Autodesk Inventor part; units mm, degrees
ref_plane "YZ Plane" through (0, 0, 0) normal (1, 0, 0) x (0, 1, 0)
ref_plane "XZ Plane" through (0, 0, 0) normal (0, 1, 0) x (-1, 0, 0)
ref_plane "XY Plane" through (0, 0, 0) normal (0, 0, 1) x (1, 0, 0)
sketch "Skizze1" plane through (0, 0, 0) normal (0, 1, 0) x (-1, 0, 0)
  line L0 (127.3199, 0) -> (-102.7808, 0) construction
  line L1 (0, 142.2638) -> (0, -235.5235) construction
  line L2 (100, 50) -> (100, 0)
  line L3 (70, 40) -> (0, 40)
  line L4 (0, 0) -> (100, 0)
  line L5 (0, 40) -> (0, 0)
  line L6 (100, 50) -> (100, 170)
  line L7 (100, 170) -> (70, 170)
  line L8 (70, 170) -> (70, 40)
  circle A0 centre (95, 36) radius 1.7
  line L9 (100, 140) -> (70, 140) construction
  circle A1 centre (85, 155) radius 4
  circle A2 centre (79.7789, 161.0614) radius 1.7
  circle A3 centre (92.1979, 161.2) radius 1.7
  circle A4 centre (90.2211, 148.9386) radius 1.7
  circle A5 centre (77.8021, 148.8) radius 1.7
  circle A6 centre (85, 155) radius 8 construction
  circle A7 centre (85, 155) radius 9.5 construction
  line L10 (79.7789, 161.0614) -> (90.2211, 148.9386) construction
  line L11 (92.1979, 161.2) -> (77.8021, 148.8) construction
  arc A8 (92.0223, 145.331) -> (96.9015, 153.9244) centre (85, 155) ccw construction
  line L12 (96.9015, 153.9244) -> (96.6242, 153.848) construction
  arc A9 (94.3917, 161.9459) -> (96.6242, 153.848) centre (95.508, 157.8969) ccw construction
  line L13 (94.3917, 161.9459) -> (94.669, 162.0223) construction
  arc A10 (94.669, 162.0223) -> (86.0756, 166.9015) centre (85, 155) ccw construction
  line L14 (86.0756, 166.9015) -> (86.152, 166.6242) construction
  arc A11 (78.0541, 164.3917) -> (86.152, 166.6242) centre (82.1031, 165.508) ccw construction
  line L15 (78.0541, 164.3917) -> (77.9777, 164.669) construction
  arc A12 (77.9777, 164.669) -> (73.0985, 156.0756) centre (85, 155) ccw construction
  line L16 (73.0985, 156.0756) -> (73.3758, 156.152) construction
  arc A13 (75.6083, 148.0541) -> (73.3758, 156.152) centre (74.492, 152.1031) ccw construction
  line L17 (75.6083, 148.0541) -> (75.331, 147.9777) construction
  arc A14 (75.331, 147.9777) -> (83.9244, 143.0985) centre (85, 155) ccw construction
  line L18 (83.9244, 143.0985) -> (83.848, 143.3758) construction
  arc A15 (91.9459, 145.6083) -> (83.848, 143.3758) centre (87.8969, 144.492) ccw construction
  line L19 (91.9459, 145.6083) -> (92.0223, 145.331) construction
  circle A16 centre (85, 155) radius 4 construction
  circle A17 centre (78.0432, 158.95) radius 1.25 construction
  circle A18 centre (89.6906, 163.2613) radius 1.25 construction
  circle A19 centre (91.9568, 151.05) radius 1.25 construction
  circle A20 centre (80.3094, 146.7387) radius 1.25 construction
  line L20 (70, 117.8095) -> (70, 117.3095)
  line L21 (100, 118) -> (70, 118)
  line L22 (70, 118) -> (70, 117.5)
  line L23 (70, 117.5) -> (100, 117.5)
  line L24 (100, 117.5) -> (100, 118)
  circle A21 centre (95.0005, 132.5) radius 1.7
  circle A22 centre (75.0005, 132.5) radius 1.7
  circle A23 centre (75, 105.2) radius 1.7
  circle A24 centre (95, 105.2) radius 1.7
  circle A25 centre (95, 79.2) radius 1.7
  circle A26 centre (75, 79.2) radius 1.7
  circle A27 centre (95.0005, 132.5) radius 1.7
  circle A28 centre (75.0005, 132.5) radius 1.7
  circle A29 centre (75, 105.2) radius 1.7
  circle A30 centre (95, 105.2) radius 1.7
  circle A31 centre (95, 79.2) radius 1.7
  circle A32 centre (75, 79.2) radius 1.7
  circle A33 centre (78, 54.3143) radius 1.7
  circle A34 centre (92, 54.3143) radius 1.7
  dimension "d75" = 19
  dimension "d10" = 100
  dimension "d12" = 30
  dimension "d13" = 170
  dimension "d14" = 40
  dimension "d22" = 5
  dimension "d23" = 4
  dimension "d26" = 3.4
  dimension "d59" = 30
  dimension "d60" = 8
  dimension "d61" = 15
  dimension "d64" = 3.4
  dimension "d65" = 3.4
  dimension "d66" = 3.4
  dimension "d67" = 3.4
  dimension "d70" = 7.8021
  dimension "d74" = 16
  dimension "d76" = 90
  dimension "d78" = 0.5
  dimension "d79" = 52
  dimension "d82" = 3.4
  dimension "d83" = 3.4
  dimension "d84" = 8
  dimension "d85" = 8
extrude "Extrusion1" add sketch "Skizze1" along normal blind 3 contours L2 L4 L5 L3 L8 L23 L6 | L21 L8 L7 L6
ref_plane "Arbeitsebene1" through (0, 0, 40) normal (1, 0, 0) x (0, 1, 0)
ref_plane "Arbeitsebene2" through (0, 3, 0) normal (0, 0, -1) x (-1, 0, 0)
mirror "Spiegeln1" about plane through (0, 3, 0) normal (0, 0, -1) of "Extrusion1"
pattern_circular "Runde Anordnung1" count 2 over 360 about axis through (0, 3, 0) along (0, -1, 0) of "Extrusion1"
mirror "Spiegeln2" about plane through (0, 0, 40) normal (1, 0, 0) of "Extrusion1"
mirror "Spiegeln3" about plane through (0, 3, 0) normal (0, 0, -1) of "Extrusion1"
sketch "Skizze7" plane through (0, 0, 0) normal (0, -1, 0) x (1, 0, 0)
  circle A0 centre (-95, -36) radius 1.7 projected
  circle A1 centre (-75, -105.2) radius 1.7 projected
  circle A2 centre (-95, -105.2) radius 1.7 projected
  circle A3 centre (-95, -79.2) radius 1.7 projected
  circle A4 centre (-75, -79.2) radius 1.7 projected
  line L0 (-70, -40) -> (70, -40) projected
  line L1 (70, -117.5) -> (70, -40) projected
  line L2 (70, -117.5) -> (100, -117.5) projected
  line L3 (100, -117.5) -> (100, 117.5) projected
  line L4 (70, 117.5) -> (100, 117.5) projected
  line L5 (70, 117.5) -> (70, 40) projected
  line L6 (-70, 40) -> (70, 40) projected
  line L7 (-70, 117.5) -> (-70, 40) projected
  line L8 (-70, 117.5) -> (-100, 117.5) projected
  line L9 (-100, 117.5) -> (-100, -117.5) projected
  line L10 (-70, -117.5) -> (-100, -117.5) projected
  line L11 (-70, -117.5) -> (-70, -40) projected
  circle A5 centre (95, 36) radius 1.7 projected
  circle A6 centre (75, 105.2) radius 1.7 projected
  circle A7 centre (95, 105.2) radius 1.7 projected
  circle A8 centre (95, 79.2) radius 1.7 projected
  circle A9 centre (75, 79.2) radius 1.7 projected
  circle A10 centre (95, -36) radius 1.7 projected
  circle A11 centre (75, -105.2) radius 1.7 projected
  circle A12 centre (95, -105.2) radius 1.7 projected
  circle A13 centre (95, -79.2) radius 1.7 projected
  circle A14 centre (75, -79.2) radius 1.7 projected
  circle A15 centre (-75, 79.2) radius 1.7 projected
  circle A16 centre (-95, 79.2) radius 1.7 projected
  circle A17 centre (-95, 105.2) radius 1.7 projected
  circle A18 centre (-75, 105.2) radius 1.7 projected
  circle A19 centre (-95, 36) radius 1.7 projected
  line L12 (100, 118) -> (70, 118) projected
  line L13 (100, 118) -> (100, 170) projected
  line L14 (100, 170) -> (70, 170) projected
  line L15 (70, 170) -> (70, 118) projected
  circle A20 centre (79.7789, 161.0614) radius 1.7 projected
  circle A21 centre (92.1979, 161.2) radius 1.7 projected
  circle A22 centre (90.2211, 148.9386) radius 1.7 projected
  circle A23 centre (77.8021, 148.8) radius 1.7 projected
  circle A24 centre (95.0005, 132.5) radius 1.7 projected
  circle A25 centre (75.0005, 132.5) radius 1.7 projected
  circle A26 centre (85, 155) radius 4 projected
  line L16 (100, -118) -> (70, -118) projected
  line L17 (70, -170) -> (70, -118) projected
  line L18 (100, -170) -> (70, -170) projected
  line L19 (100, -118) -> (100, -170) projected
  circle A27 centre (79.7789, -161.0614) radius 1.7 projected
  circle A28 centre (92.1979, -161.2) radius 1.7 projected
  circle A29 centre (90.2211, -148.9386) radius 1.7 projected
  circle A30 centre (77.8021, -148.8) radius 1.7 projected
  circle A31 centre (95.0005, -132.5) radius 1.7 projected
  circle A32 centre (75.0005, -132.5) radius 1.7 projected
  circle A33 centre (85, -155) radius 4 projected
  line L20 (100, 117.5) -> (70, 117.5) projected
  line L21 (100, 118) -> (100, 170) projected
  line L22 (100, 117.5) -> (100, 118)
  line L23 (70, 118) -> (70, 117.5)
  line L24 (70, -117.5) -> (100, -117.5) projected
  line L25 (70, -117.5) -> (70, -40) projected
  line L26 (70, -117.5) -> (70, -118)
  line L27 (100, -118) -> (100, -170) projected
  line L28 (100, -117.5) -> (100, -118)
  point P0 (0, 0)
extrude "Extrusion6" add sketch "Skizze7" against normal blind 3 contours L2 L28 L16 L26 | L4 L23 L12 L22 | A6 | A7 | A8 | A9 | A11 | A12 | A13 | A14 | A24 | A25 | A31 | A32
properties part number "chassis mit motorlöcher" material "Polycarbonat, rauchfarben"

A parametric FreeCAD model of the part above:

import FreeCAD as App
import Part
import Sketcher
from FreeCAD import Vector


def add_polygon(sketch, points):
    """Adds a closed chain of lines whose ends are joined by coincident constraints."""
    first, n = sketch.GeometryCount, len(points)
    for a, b in zip(points, points[1:] + points[:1]):
        sketch.addGeometry(Part.LineSegment(App.Vector(*a, 0), App.Vector(*b, 0)), False)
    for i in range(n):
        sketch.addConstraint(Sketcher.Constraint("Coincident", first + i, 2, first + (i + 1) % n, 1))

doc = App.newDocument("Part")
body = doc.addObject("PartDesign::Body", "Body")
body.AllowCompound = True

sketch1 = body.newObject("Sketcher::SketchObject", "Sketch")
sketch1.AttachmentSupport = (doc.getObject("XZ_Plane"), [""])
sketch1.MapMode = "FlatFace"
add_polygon(sketch1, [(-100, 0), (-100, 117.5), (-70, 117.5), (-70, 40), (0, 40), (0, 0)])
sketch1.addGeometry(Part.Circle(Vector(-95, 36, 0), Vector(0, 0, 1), 1.7), False)
sketch1.addGeometry(Part.Circle(Vector(-78, 54.3, 0), Vector(0, 0, 1), 1.7), False)
sketch1.addGeometry(Part.Circle(Vector(-92, 54.3, 0), Vector(0, 0, 1), 1.7), False)
sketch1.addGeometry(Part.Circle(Vector(-75, 79.2, 0), Vector(0, 0, 1), 1.7), False)
sketch1.addGeometry(Part.Circle(Vector(-95, 79.2, 0), Vector(0, 0, 1), 1.7), False)
sketch1.addGeometry(Part.Circle(Vector(-75, 105.2, 0), Vector(0, 0, 1), 1.7), False)
sketch1.addGeometry(Part.Circle(Vector(-95, 105.2, 0), Vector(0, 0, 1), 1.7), False)
add_polygon(sketch1, [(-70, 118), (-100, 118), (-100, 170), (-70, 170)])
sketch1.addGeometry(Part.Circle(Vector(-75, 132.5, 0), Vector(0, 0, 1), 1.7), False)
sketch1.addGeometry(Part.Circle(Vector(-95, 132.5, 0), Vector(0, 0, 1), 1.7), False)
sketch1.addGeometry(Part.Circle(Vector(-77.8, 148.8, 0), Vector(0, 0, 1), 1.7), False)
sketch1.addGeometry(Part.Circle(Vector(-85, 155, 0), Vector(0, 0, 1), 4), False)
sketch1.addGeometry(Part.Circle(Vector(-79.8, 161.1, 0), Vector(0, 0, 1), 1.7), False)
sketch1.addGeometry(Part.Circle(Vector(-90.2, 148.9, 0), Vector(0, 0, 1), 1.7), False)
sketch1.addGeometry(Part.Circle(Vector(-92.2, 161.2, 0), Vector(0, 0, 1), 1.7), False)
sketch1.addConstraint(Sketcher.Constraint("Vertical", 0))
sketch1.addConstraint(Sketcher.Constraint("Horizontal", 1))
sketch1.addConstraint(Sketcher.Constraint("Vertical", 2))
sketch1.addConstraint(Sketcher.Constraint("Horizontal", 3))
sketch1.addConstraint(Sketcher.Constraint("Vertical", 4))
sketch1.addConstraint(Sketcher.Constraint("Horizontal", 5))
sketch1.addConstraint(Sketcher.Constraint("Horizontal", 13))
sketch1.addConstraint(Sketcher.Constraint("Vertical", 14))
sketch1.addConstraint(Sketcher.Constraint("Horizontal", 15))
sketch1.addConstraint(Sketcher.Constraint("Vertical", 16))
sketch1.addConstraint(Sketcher.Constraint("Coincident", 4, 2, -1, 1))
sketch1.addConstraint(Sketcher.Constraint("Equal", 6, 7))
sketch1.addConstraint(Sketcher.Constraint("Equal", 7, 8))
sketch1.addConstraint(Sketcher.Constraint("Equal", 8, 9))
sketch1.addConstraint(Sketcher.Constraint("Equal", 9, 10))
sketch1.addConstraint(Sketcher.Constraint("Equal", 10, 11))
sketch1.addConstraint(Sketcher.Constraint("Equal", 11, 12))
sketch1.addConstraint(Sketcher.Constraint("Equal", 12, 17))
sketch1.addConstraint(Sketcher.Constraint("Equal", 17, 18))
sketch1.addConstraint(Sketcher.Constraint("Equal", 18, 19))
sketch1.addConstraint(Sketcher.Constraint("Equal", 19, 21))
sketch1.addConstraint(Sketcher.Constraint("Equal", 21, 22))
sketch1.addConstraint(Sketcher.Constraint("Equal", 22, 23))
sketch1.addConstraint(Sketcher.Constraint("Horizontal", 7, 3, 8, 3))
sketch1.addConstraint(Sketcher.Constraint("Horizontal", 9, 3, 10, 3))
sketch1.addConstraint(Sketcher.Constraint("Horizontal", 11, 3, 12, 3))
sketch1.addConstraint(Sketcher.Constraint("Horizontal", 17, 3, 18, 3))
sketch1.addConstraint(Sketcher.Constraint("Vertical", 6, 3, 10, 3))
sketch1.addConstraint(Sketcher.Constraint("Vertical", 9, 3, 11, 3))
sketch1.addConstraint(Sketcher.Constraint("Vertical", 10, 3, 12, 3))
sketch1.addConstraint(Sketcher.Constraint("Vertical", 5, 2, 13, 2))
sketch1.addConstraint(Sketcher.Constraint("Vertical", 2, 2, 15, 2))
sketch1.addConstraint(Sketcher.Constraint("Diameter", 20, 8.0))
sketch1.addConstraint(Sketcher.Constraint("Diameter", 6, 3.4))
sketch1.addConstraint(Sketcher.Constraint("DistanceX", 1, 1, 1, 2, 30.0))
sketch1.addConstraint(Sketcher.Constraint("DistanceX", 5, 2, 5, 1, 100.0))
sketch1.addConstraint(Sketcher.Constraint("DistanceY", 4, 2, 4, 1, 40.0))
sketch1.addConstraint(Sketcher.Constraint("DistanceY", 14, 1, 14, 2, 52.0))
sketch1.addConstraint(Sketcher.Constraint("DistanceY", -1, 1, 14, 2, 170.0))
sketch1.addConstraint(Sketcher.Constraint("DistanceX", 0, 2, 12, 3, 5.0))
sketch1.addConstraint(Sketcher.Constraint("DistanceY", 0, 2, 18, 3, 15.0))
sketch1.addConstraint(Sketcher.Constraint("DistanceX", 11, 3, 1, 2, 5.0))
sketch1.addConstraint(Sketcher.Constraint("DistanceX", 7, 3, 2, 2, 8.0))
sketch1.addConstraint(Sketcher.Constraint("DistanceY", 6, 3, 2, 2, 4.0))
sketch1.addConstraint(Sketcher.Constraint("DistanceX", 5, 2, 8, 3, 8.0))
sketch1.addConstraint(Sketcher.Constraint("DistanceX", 14, 2, 20, 3, 15.0))
sketch1.addConstraint(Sketcher.Constraint("DistanceY", 20, 3, 14, 2, 15.0))
sketch1.addConstraint(Sketcher.Constraint("DistanceY", 0, 2, 13, 2, 0.5))
sketch1.addConstraint(Sketcher.Constraint("DistanceY", 9, 3, 11, 3, 26.0))
sketch1.addConstraint(Sketcher.Constraint("DistanceX", 18, 3, 17, 3, 20.0))
sketch1.addConstraint(Sketcher.Constraint("DistanceX", 14, 2, 23, 3, 7.802))
sketch1.addConstraint(Sketcher.Constraint("DistanceX", 19, 3, 15, 2, 7.802))
sketch1.addConstraint(Sketcher.Constraint("DistanceY", -1, 1, 9, 3, 79.2))
sketch1.addConstraint(Sketcher.Constraint("DistanceY", -1, 1, 19, 3, 148.8))
sketch1.addConstraint(Sketcher.Constraint("DistanceY", -1, 1, 23, 3, 161.2))
sketch1.addConstraint(Sketcher.Constraint("DistanceX", 0, 2, 18, 3, 4.9995))
sketch1.addConstraint(Sketcher.Constraint("DistanceX", 21, 3, -1, 1, 79.779))
sketch1.addConstraint(Sketcher.Constraint("DistanceX", 22, 3, -1, 1, 90.221))
sketch1.addConstraint(Sketcher.Constraint("DistanceY", -1, 1, 7, 3, 54.3143))
sketch1.addConstraint(Sketcher.Constraint("DistanceY", -1, 1, 21, 3, 161.0614))
sketch1.addConstraint(Sketcher.Constraint("DistanceY", -1, 1, 22, 3, 148.9386))
pad1 = body.newObject("PartDesign::Pad", "Pad")
pad1.Profile = sketch1
pad1.Length = 3
pad1.Reversed = True
doc.recompute()

mirrored = body.newObject("PartDesign::Mirrored", "Mirrored")
mirrored.Originals = [pad1]
mirrored.MirrorPlane = (doc.getObject("XY_Plane"), [""])
body.Tip = mirrored
doc.recompute()

polarpattern = body.newObject("PartDesign::PolarPattern", "PolarPattern")
polarpattern.Originals = [pad1]
polarpattern.Axis = (doc.getObject("Y_Axis"), [""])
polarpattern.Angle = 360
polarpattern.Occurrences = 2
body.Tip = polarpattern
doc.recompute()

mirrored2 = body.newObject("PartDesign::Mirrored", "Mirrored001")
mirrored2.Originals = [pad1]
mirrored2.MirrorPlane = (doc.getObject("YZ_Plane"), [""])
body.Tip = mirrored2
doc.recompute()

mirrored3 = body.newObject("PartDesign::Mirrored", "Mirrored002")
mirrored3.Originals = [pad1]
mirrored3.MirrorPlane = (doc.getObject("XY_Plane"), [""])
body.Tip = mirrored3

sketch2 = body.newObject("Sketcher::SketchObject", "Sketch001")
sketch2.AttachmentSupport = (doc.getObject("XZ_Plane"), [""])
sketch2.MapMode = "FlatFace"
add_polygon(sketch2, [(100, -117.5), (70, -117.5), (70, -118), (100, -118)])
add_polygon(sketch2, [(70, 117.5), (100, 117.5), (100, 118), (70, 118)])
sketch2.addGeometry(Part.Circle(Vector(75, 105.2, 0), Vector(0, 0, 1), 1.7), False)
sketch2.addGeometry(Part.Circle(Vector(95, 105.2, 0), Vector(0, 0, 1), 1.7), False)
sketch2.addGeometry(Part.Circle(Vector(95, 79.2, 0), Vector(0, 0, 1), 1.7), False)
sketch2.addGeometry(Part.Circle(Vector(75, 79.2, 0), Vector(0, 0, 1), 1.7), False)
sketch2.addGeometry(Part.Circle(Vector(75, -105.2, 0), Vector(0, 0, 1), 1.7), False)
sketch2.addGeometry(Part.Circle(Vector(95, -105.2, 0), Vector(0, 0, 1), 1.7), False)
sketch2.addGeometry(Part.Circle(Vector(95, -79.2, 0), Vector(0, 0, 1), 1.7), False)
sketch2.addGeometry(Part.Circle(Vector(75, -79.2, 0), Vector(0, 0, 1), 1.7), False)
sketch2.addGeometry(Part.Circle(Vector(95, 132.5, 0), Vector(0, 0, 1), 1.7), False)
sketch2.addGeometry(Part.Circle(Vector(75, 132.5, 0), Vector(0, 0, 1), 1.7), False)
sketch2.addGeometry(Part.Circle(Vector(95, -132.5, 0), Vector(0, 0, 1), 1.7), False)
sketch2.addGeometry(Part.Circle(Vector(75, -132.5, 0), Vector(0, 0, 1), 1.7), False)
sketch2.addConstraint(Sketcher.Constraint("Horizontal", 0))
sketch2.addConstraint(Sketcher.Constraint("Vertical", 1))
sketch2.addConstraint(Sketcher.Constraint("Horizontal", 2))
sketch2.addConstraint(Sketcher.Constraint("Vertical", 3))
sketch2.addConstraint(Sketcher.Constraint("Horizontal", 4))
sketch2.addConstraint(Sketcher.Constraint("Vertical", 5))
sketch2.addConstraint(Sketcher.Constraint("Horizontal", 6))
sketch2.addConstraint(Sketcher.Constraint("Vertical", 7))
sketch2.addConstraint(Sketcher.Constraint("Equal", 8, 9))
sketch2.addConstraint(Sketcher.Constraint("Equal", 9, 10))
sketch2.addConstraint(Sketcher.Constraint("Equal", 10, 11))
sketch2.addConstraint(Sketcher.Constraint("Equal", 11, 12))
sketch2.addConstraint(Sketcher.Constraint("Equal", 12, 13))
sketch2.addConstraint(Sketcher.Constraint("Equal", 13, 14))
sketch2.addConstraint(Sketcher.Constraint("Equal", 14, 15))
sketch2.addConstraint(Sketcher.Constraint("Equal", 15, 16))
sketch2.addConstraint(Sketcher.Constraint("Equal", 16, 17))
sketch2.addConstraint(Sketcher.Constraint("Equal", 17, 18))
sketch2.addConstraint(Sketcher.Constraint("Equal", 18, 19))
sketch2.addConstraint(Sketcher.Constraint("Symmetric", 8, 3, 12, 3, -1))
sketch2.addConstraint(Sketcher.Constraint("Symmetric", 9, 3, 13, 3, -1))
sketch2.addConstraint(Sketcher.Constraint("Symmetric", 10, 3, 14, 3, -1))
sketch2.addConstraint(Sketcher.Constraint("Symmetric", 11, 3, 15, 3, -1))
sketch2.addConstraint(Sketcher.Constraint("Symmetric", 16, 3, 18, 3, -1))
sketch2.addConstraint(Sketcher.Constraint("Symmetric", 17, 3, 19, 3, -1))
sketch2.addConstraint(Sketcher.Constraint("Symmetric", 3, 2, 4, 2, -1))
sketch2.addConstraint(Sketcher.Constraint("Symmetric", 1, 2, 6, 2, -1))
sketch2.addConstraint(Sketcher.Constraint("Horizontal", 8, 3, 9, 3))
sketch2.addConstraint(Sketcher.Constraint("Horizontal", 10, 3, 11, 3))
sketch2.addConstraint(Sketcher.Constraint("Horizontal", 16, 3, 17, 3))
sketch2.addConstraint(Sketcher.Constraint("Vertical", 9, 3, 10, 3))
sketch2.addConstraint(Sketcher.Constraint("Vertical", 8, 3, 11, 3))
sketch2.addConstraint(Sketcher.Constraint("Diameter", 8, 3.4))
sketch2.addConstraint(Sketcher.Constraint("DistanceX", 0, 2, 0, 1, 30.0))
sketch2.addConstraint(Sketcher.Constraint("DistanceY", 1, 2, 1, 1, 0.5))
sketch2.addConstraint(Sketcher.Constraint("DistanceX", -1, 1, 8, 3, 75.0))
sketch2.addConstraint(Sketcher.Constraint("DistanceX", -1, 1, 9, 3, 95.0))
sketch2.addConstraint(Sketcher.Constraint("DistanceX", -1, 1, 0, 2, 70.0))
sketch2.addConstraint(Sketcher.Constraint("DistanceY", 1, 2, -1, 1, 118.0))
sketch2.addConstraint(Sketcher.Constraint("DistanceY", 10, 3, 9, 3, 26.0))
sketch2.addConstraint(Sketcher.Constraint("DistanceX", 17, 3, 16, 3, 20.0))
sketch2.addConstraint(Sketcher.Constraint("DistanceY", 19, 3, 0, 2, 15.0))
sketch2.addConstraint(Sketcher.Constraint("DistanceY", -1, 1, 8, 3, 105.2))
sketch2.addConstraint(Sketcher.Constraint("DistanceX", -1, 1, 16, 3, 95.0005))
pad2 = body.newObject("PartDesign::Pad", "Pad001")
pad2.Profile = sketch2
pad2.Length = 3
pad2.Reversed = True

doc.recompute()
